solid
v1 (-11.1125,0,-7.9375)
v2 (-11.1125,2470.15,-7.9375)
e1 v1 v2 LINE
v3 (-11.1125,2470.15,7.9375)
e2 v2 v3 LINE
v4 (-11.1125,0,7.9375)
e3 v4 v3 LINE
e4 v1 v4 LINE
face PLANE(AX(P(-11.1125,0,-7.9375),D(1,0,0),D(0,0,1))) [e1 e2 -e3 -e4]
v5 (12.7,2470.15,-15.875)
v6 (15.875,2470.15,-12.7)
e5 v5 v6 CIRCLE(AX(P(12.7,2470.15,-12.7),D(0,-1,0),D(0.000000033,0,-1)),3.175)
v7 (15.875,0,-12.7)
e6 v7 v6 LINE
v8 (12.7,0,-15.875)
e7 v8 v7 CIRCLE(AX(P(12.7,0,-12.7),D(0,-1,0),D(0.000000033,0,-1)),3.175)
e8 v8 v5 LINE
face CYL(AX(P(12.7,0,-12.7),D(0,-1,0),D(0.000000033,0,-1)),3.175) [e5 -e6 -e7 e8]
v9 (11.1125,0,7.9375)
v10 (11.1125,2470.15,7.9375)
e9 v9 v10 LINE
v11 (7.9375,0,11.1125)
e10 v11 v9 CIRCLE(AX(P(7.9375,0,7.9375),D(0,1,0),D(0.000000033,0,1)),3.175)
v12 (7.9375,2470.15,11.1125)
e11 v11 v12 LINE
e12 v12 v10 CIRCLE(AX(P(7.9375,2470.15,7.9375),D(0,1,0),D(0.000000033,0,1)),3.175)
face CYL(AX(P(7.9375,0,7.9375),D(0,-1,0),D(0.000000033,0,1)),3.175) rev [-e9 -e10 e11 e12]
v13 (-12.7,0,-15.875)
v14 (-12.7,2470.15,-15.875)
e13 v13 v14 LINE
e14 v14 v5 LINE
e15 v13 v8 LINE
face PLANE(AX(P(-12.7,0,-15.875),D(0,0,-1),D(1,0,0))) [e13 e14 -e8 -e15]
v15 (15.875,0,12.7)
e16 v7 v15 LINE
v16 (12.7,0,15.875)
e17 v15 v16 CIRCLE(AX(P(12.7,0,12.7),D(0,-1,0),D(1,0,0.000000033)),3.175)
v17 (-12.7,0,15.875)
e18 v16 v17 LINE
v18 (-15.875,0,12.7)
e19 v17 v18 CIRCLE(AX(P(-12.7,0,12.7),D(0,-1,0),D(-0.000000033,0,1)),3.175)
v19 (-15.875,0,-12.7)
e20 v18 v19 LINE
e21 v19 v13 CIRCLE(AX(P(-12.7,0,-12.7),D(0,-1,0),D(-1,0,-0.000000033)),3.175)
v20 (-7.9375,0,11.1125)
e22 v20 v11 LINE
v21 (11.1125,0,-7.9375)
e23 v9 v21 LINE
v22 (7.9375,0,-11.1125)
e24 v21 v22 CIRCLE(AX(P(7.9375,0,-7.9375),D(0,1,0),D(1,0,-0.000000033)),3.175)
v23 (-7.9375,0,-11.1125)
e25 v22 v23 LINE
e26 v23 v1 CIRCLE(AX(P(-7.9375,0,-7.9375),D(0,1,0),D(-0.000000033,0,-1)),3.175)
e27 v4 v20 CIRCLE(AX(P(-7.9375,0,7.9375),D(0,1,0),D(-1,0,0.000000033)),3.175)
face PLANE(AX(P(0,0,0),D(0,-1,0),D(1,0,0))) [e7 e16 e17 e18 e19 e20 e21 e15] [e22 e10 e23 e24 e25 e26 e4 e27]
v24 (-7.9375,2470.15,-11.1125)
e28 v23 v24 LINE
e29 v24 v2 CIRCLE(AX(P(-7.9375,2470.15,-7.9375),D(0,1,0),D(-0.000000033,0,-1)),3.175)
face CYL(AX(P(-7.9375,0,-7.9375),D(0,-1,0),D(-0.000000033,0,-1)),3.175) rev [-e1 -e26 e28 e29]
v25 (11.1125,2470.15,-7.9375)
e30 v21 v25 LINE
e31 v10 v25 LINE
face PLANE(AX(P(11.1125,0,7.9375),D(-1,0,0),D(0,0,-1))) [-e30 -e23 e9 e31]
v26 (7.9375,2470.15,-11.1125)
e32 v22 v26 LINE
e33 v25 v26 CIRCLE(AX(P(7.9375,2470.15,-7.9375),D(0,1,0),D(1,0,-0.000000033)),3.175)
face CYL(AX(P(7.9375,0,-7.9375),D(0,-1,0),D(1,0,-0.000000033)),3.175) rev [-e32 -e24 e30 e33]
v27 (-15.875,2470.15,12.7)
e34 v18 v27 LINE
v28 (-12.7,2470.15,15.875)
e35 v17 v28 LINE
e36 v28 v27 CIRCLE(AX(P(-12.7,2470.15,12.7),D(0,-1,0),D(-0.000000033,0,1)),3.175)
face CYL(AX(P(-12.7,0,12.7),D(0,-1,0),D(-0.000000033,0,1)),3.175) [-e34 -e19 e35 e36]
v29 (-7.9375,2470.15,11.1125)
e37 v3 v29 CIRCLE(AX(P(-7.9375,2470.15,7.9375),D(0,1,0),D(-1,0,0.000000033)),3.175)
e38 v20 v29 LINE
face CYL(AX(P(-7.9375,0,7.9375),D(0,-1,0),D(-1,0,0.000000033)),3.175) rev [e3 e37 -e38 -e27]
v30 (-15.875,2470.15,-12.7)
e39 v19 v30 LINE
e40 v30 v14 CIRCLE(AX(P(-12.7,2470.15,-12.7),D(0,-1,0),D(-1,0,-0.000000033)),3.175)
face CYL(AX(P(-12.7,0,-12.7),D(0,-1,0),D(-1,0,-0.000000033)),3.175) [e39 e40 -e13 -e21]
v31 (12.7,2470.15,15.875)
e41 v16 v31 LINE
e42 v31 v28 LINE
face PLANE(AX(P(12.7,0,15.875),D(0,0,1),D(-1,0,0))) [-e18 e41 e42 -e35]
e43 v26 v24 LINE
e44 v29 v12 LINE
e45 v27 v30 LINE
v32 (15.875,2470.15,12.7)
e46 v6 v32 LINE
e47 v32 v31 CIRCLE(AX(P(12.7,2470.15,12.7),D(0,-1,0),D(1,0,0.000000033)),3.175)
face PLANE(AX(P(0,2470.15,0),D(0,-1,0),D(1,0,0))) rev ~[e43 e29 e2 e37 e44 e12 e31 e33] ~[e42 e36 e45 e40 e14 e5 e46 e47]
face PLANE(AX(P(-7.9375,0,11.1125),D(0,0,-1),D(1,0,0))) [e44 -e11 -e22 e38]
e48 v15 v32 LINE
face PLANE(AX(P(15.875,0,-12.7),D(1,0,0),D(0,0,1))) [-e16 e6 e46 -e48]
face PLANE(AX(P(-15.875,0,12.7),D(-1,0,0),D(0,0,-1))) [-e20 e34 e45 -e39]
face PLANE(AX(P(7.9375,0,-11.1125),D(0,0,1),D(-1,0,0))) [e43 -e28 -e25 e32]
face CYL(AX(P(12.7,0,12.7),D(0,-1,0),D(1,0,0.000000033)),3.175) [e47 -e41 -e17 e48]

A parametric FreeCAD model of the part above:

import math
import FreeCAD as App
import Part
import Sketcher
Q = App.Units.Quantity

doc = App.newDocument("Part")
params = doc.addObject("Spreadsheet::Sheet", "Params")
for row, (alias, value) in enumerate([
    ("sketch1_width", "1 in"),
    ("sketch1_radius", "0.125 in"),
    ("sketch1_width2", "0.625 in"),
    ("pad1_length", "97.25 in"),
], start=1):
    params.set(f"A{row}", alias)
    params.set(f"B{row}", "=" + value)
    params.setAlias(f"B{row}", alias)

body = doc.addObject("PartDesign::Body", "Body")

# Sketch on XZ plane
sketch1 = body.newObject("Sketcher::SketchObject", "Sketch")
sketch1.AttachmentSupport = (doc.getObject("XZ_Plane"), [""])
sketch1.MapMode = "FlatFace"
sketch1.addGeometry([
    Part.ArcOfCircle(Part.Circle(App.Vector(12.7, 12.7, 0), App.Vector(0, 0, 1), 3.2), math.radians(0), math.radians(90)),  # 0
    Part.LineSegment(App.Vector(12.7, 15.9, 0), App.Vector(-12.7, 15.9, 0)),  # 1
    Part.ArcOfCircle(Part.Circle(App.Vector(-12.7, 12.7, 0), App.Vector(0, 0, 1), 3.2), math.radians(90), math.radians(180)),  # 2
    Part.LineSegment(App.Vector(-15.9, 12.7, 0), App.Vector(-15.9, -12.7, 0)),  # 3
    Part.ArcOfCircle(Part.Circle(App.Vector(-12.7, -12.7, 0), App.Vector(0, 0, 1), 3.2), math.radians(-180), math.radians(-90)),  # 4
    Part.LineSegment(App.Vector(-12.7, -15.9, 0), App.Vector(12.7, -15.9, 0)),  # 5
    Part.ArcOfCircle(Part.Circle(App.Vector(12.7, -12.7, 0), App.Vector(0, 0, 1), 3.2), math.radians(-90), math.radians(0)),  # 6
    Part.LineSegment(App.Vector(15.9, -12.7, 0), App.Vector(15.9, 12.7, 0)),  # 7
    Part.ArcOfCircle(Part.Circle(App.Vector(-7.9, 7.9, 0), App.Vector(0, 0, 1), 3.2), math.radians(90), math.radians(180)),  # 8
    Part.LineSegment(App.Vector(-7.9, 11.1, 0), App.Vector(7.9, 11.1, 0)),  # 9
    Part.ArcOfCircle(Part.Circle(App.Vector(7.9, 7.9, 0), App.Vector(0, 0, 1), 3.2), math.radians(0), math.radians(90)),  # 10
    Part.LineSegment(App.Vector(11.1, 7.9, 0), App.Vector(11.1, -7.9, 0)),  # 11
    Part.ArcOfCircle(Part.Circle(App.Vector(7.9, -7.9, 0), App.Vector(0, 0, 1), 3.2), math.radians(-90), math.radians(0)),  # 12
    Part.LineSegment(App.Vector(7.9, -11.1, 0), App.Vector(-7.9, -11.1, 0)),  # 13
    Part.ArcOfCircle(Part.Circle(App.Vector(-7.9, -7.9, 0), App.Vector(0, 0, 1), 3.2), math.radians(-180), math.radians(-90)),  # 14
    Part.LineSegment(App.Vector(-11.1, -7.9, 0), App.Vector(-11.1, 7.9, 0)),  # 15
], False)
sketch1.addConstraint([
    Sketcher.Constraint("Tangent", 0, 2, 1, 1),
    Sketcher.Constraint("Tangent", 1, 2, 2, 1),
    Sketcher.Constraint("Tangent", 2, 2, 3, 1),
    Sketcher.Constraint("Tangent", 3, 2, 4, 1),
    Sketcher.Constraint("Tangent", 4, 2, 5, 1),
    Sketcher.Constraint("Tangent", 5, 2, 6, 1),
    Sketcher.Constraint("Tangent", 6, 2, 7, 1),
    Sketcher.Constraint("Tangent", 7, 2, 0, 1),
    Sketcher.Constraint("Tangent", 8, 1, 9, 1),
    Sketcher.Constraint("Tangent", 9, 2, 10, 2),
    Sketcher.Constraint("Tangent", 10, 1, 11, 1),
    Sketcher.Constraint("Tangent", 11, 2, 12, 2),
    Sketcher.Constraint("Tangent", 12, 1, 13, 1),
    Sketcher.Constraint("Tangent", 13, 2, 14, 2),
    Sketcher.Constraint("Tangent", 14, 1, 15, 1),
    Sketcher.Constraint("Tangent", 15, 2, 8, 2),
    Sketcher.Constraint("Horizontal", 1),
    Sketcher.Constraint("Vertical", 3),
    Sketcher.Constraint("Horizontal", 5),
    Sketcher.Constraint("Vertical", 7),
    Sketcher.Constraint("Horizontal", 9),
    Sketcher.Constraint("Vertical", 11),
    Sketcher.Constraint("Horizontal", 13),
    Sketcher.Constraint("Vertical", 15),
    Sketcher.Constraint("Equal", 0, 2),
    Sketcher.Constraint("Equal", 2, 4),
    Sketcher.Constraint("Equal", 4, 6),
    Sketcher.Constraint("Equal", 6, 8),
    Sketcher.Constraint("Equal", 8, 10),
    Sketcher.Constraint("Equal", 10, 12),
    Sketcher.Constraint("Equal", 12, 14),
    Sketcher.Constraint("Symmetric", 0, 3, 4, 3, -1, 1),
    Sketcher.Constraint("Symmetric", 8, 3, 12, 3, -1, 1),
    Sketcher.Constraint("Equal", 5, 3),
    Sketcher.Constraint("Equal", 13, 11),
    Sketcher.Constraint("DistanceX", 1, 2, 1, 1, Q("1 in")),
    Sketcher.Constraint("Radius", 0, Q("0.125 in")),
    Sketcher.Constraint("DistanceX", 9, 1, 9, 2, Q("0.625 in")),
])
sketch1.setExpression("Constraints[35]", "Params.sketch1_width")
sketch1.setExpression("Constraints[36]", "Params.sketch1_radius")
sketch1.setExpression("Constraints[37]", "Params.sketch1_width2")
pad1 = body.newObject("PartDesign::Pad", "Pad")
pad1.Profile = sketch1
pad1.setExpression("Length", "Params.pad1_length")
pad1.Reversed = True

doc.recompute()
